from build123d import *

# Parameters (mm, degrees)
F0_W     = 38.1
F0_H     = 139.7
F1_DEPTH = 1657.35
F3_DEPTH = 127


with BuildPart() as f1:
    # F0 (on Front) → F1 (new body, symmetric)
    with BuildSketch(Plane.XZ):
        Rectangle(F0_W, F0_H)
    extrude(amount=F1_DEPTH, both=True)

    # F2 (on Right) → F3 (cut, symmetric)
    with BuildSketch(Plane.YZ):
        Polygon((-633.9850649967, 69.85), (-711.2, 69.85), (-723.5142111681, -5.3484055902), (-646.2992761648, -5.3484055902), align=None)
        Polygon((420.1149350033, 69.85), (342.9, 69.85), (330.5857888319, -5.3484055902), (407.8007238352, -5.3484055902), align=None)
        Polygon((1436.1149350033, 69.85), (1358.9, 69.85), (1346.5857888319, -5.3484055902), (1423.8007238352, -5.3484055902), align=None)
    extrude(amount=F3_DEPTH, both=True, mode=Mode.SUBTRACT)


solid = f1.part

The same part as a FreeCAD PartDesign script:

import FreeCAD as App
import Part
import Sketcher

V = App.Vector
Q = App.Units.Quantity


def add_polygon(sketch, points):
    """Adds a closed chain of lines whose ends are joined by coincident constraints."""
    first, n = sketch.GeometryCount, len(points)
    for a, b in zip(points, points[1:] + points[:1]):
        sketch.addGeometry(Part.LineSegment(App.Vector(*a, 0), App.Vector(*b, 0)), False)
    for i in range(n):
        sketch.addConstraint(Sketcher.Constraint("Coincident", first + i, 2, first + (i + 1) % n, 1))

doc = App.newDocument("Part")
body = doc.addObject("PartDesign::Body", "Body")

# Sketch on XZ plane
sketch1 = body.newObject("Sketcher::SketchObject", "Sketch")
sketch1.AttachmentSupport = (doc.getObject("XZ_Plane"), [""])
sketch1.MapMode = "FlatFace"
add_polygon(sketch1, [(-19.05, 69.85), (-19.05, -69.85), (19.05, -69.85), (19.05, 69.85)])  # lines 0-3
sketch1.addConstraint([
    Sketcher.Constraint("Vertical", 0),
    Sketcher.Constraint("Horizontal", 1),
    Sketcher.Constraint("Vertical", 2),
    Sketcher.Constraint("Horizontal", 3),
    Sketcher.Constraint("Symmetric", 0, 2, 2, 2, -1, 1),
    Sketcher.Constraint("DistanceX", 1, 1, 1, 2, Q("1.5 in")),
    Sketcher.Constraint("DistanceY", 0, 2, 0, 1, Q("5.5 in")),
])
pad1 = body.newObject("PartDesign::Pad", "Pad")
pad1.Profile = sketch1
pad1.Length = Q("130.5 in")
pad1.Midplane = True

# Sketch on YZ plane
sketch2 = body.newObject("Sketcher::SketchObject", "Sketch001")
sketch2.AttachmentSupport = (doc.getObject("YZ_Plane"), [""])
sketch2.MapMode = "FlatFace"
add_polygon(sketch2, [(-633.985065, 69.85), (-711.2, 69.85), (-723.514211, -5.348406), (-646.299276, -5.348406)])  # lines 0-3
add_polygon(sketch2, [(420.114935, 69.85), (342.9, 69.85), (330.585789, -5.348406), (407.800724, -5.348406)])  # lines 4-7
add_polygon(sketch2, [(1436.114935, 69.85), (1358.9, 69.85), (1346.585789, -5.348406), (1423.800724, -5.348406)])  # lines 8-11
sketch2.addConstraint([
    Sketcher.Constraint("Horizontal", 0),
    Sketcher.Constraint("Horizontal", 2),
    Sketcher.Constraint("Horizontal", 4),
    Sketcher.Constraint("Horizontal", 6),
    Sketcher.Constraint("Horizontal", 8),
    Sketcher.Constraint("Horizontal", 10),
    Sketcher.Constraint("Parallel", 1, 3),
    Sketcher.Constraint("Parallel", 3, 5),
    Sketcher.Constraint("Parallel", 5, 7),
    Sketcher.Constraint("Parallel", 7, 9),
    Sketcher.Constraint("Parallel", 9, 11),
    Sketcher.Constraint("Horizontal", 3, 2, 4, 2),
    Sketcher.Constraint("Horizontal", 2, 2, 5, 2),
    Sketcher.Constraint("Horizontal", 7, 2, 8, 2),
    Sketcher.Constraint("Horizontal", 6, 2, 9, 2),
    Sketcher.Constraint("Equal", 2, 4),
    Sketcher.Constraint("Equal", 6, 8),
    Sketcher.Constraint("Distance", 1, Q("3 in")),
    Sketcher.Constraint("DistanceX", 0, 2, -1, 1, Q("28 in")),
    Sketcher.Constraint("DistanceX", 4, 2, 8, 2, Q("40 in")),
    Sketcher.Constraint("DistanceX", -1, 1, 4, 2, Q("13.5 in")),
    Sketcher.Constraint("Angle", 1, Q("-99.3 deg")),
    Sketcher.Constraint("DistanceY", -1, 1, 0, 2, Q("2.75 in")),
    Sketcher.Constraint("DistanceX", 0, 2, 0, 1, Q("77.214935 mm")),
])
pocket1 = body.newObject("PartDesign::Pocket", "Pocket")
pocket1.Profile = sketch2
pocket1.Length = Q("10 in")
pocket1.Midplane = True

doc.recompute()
